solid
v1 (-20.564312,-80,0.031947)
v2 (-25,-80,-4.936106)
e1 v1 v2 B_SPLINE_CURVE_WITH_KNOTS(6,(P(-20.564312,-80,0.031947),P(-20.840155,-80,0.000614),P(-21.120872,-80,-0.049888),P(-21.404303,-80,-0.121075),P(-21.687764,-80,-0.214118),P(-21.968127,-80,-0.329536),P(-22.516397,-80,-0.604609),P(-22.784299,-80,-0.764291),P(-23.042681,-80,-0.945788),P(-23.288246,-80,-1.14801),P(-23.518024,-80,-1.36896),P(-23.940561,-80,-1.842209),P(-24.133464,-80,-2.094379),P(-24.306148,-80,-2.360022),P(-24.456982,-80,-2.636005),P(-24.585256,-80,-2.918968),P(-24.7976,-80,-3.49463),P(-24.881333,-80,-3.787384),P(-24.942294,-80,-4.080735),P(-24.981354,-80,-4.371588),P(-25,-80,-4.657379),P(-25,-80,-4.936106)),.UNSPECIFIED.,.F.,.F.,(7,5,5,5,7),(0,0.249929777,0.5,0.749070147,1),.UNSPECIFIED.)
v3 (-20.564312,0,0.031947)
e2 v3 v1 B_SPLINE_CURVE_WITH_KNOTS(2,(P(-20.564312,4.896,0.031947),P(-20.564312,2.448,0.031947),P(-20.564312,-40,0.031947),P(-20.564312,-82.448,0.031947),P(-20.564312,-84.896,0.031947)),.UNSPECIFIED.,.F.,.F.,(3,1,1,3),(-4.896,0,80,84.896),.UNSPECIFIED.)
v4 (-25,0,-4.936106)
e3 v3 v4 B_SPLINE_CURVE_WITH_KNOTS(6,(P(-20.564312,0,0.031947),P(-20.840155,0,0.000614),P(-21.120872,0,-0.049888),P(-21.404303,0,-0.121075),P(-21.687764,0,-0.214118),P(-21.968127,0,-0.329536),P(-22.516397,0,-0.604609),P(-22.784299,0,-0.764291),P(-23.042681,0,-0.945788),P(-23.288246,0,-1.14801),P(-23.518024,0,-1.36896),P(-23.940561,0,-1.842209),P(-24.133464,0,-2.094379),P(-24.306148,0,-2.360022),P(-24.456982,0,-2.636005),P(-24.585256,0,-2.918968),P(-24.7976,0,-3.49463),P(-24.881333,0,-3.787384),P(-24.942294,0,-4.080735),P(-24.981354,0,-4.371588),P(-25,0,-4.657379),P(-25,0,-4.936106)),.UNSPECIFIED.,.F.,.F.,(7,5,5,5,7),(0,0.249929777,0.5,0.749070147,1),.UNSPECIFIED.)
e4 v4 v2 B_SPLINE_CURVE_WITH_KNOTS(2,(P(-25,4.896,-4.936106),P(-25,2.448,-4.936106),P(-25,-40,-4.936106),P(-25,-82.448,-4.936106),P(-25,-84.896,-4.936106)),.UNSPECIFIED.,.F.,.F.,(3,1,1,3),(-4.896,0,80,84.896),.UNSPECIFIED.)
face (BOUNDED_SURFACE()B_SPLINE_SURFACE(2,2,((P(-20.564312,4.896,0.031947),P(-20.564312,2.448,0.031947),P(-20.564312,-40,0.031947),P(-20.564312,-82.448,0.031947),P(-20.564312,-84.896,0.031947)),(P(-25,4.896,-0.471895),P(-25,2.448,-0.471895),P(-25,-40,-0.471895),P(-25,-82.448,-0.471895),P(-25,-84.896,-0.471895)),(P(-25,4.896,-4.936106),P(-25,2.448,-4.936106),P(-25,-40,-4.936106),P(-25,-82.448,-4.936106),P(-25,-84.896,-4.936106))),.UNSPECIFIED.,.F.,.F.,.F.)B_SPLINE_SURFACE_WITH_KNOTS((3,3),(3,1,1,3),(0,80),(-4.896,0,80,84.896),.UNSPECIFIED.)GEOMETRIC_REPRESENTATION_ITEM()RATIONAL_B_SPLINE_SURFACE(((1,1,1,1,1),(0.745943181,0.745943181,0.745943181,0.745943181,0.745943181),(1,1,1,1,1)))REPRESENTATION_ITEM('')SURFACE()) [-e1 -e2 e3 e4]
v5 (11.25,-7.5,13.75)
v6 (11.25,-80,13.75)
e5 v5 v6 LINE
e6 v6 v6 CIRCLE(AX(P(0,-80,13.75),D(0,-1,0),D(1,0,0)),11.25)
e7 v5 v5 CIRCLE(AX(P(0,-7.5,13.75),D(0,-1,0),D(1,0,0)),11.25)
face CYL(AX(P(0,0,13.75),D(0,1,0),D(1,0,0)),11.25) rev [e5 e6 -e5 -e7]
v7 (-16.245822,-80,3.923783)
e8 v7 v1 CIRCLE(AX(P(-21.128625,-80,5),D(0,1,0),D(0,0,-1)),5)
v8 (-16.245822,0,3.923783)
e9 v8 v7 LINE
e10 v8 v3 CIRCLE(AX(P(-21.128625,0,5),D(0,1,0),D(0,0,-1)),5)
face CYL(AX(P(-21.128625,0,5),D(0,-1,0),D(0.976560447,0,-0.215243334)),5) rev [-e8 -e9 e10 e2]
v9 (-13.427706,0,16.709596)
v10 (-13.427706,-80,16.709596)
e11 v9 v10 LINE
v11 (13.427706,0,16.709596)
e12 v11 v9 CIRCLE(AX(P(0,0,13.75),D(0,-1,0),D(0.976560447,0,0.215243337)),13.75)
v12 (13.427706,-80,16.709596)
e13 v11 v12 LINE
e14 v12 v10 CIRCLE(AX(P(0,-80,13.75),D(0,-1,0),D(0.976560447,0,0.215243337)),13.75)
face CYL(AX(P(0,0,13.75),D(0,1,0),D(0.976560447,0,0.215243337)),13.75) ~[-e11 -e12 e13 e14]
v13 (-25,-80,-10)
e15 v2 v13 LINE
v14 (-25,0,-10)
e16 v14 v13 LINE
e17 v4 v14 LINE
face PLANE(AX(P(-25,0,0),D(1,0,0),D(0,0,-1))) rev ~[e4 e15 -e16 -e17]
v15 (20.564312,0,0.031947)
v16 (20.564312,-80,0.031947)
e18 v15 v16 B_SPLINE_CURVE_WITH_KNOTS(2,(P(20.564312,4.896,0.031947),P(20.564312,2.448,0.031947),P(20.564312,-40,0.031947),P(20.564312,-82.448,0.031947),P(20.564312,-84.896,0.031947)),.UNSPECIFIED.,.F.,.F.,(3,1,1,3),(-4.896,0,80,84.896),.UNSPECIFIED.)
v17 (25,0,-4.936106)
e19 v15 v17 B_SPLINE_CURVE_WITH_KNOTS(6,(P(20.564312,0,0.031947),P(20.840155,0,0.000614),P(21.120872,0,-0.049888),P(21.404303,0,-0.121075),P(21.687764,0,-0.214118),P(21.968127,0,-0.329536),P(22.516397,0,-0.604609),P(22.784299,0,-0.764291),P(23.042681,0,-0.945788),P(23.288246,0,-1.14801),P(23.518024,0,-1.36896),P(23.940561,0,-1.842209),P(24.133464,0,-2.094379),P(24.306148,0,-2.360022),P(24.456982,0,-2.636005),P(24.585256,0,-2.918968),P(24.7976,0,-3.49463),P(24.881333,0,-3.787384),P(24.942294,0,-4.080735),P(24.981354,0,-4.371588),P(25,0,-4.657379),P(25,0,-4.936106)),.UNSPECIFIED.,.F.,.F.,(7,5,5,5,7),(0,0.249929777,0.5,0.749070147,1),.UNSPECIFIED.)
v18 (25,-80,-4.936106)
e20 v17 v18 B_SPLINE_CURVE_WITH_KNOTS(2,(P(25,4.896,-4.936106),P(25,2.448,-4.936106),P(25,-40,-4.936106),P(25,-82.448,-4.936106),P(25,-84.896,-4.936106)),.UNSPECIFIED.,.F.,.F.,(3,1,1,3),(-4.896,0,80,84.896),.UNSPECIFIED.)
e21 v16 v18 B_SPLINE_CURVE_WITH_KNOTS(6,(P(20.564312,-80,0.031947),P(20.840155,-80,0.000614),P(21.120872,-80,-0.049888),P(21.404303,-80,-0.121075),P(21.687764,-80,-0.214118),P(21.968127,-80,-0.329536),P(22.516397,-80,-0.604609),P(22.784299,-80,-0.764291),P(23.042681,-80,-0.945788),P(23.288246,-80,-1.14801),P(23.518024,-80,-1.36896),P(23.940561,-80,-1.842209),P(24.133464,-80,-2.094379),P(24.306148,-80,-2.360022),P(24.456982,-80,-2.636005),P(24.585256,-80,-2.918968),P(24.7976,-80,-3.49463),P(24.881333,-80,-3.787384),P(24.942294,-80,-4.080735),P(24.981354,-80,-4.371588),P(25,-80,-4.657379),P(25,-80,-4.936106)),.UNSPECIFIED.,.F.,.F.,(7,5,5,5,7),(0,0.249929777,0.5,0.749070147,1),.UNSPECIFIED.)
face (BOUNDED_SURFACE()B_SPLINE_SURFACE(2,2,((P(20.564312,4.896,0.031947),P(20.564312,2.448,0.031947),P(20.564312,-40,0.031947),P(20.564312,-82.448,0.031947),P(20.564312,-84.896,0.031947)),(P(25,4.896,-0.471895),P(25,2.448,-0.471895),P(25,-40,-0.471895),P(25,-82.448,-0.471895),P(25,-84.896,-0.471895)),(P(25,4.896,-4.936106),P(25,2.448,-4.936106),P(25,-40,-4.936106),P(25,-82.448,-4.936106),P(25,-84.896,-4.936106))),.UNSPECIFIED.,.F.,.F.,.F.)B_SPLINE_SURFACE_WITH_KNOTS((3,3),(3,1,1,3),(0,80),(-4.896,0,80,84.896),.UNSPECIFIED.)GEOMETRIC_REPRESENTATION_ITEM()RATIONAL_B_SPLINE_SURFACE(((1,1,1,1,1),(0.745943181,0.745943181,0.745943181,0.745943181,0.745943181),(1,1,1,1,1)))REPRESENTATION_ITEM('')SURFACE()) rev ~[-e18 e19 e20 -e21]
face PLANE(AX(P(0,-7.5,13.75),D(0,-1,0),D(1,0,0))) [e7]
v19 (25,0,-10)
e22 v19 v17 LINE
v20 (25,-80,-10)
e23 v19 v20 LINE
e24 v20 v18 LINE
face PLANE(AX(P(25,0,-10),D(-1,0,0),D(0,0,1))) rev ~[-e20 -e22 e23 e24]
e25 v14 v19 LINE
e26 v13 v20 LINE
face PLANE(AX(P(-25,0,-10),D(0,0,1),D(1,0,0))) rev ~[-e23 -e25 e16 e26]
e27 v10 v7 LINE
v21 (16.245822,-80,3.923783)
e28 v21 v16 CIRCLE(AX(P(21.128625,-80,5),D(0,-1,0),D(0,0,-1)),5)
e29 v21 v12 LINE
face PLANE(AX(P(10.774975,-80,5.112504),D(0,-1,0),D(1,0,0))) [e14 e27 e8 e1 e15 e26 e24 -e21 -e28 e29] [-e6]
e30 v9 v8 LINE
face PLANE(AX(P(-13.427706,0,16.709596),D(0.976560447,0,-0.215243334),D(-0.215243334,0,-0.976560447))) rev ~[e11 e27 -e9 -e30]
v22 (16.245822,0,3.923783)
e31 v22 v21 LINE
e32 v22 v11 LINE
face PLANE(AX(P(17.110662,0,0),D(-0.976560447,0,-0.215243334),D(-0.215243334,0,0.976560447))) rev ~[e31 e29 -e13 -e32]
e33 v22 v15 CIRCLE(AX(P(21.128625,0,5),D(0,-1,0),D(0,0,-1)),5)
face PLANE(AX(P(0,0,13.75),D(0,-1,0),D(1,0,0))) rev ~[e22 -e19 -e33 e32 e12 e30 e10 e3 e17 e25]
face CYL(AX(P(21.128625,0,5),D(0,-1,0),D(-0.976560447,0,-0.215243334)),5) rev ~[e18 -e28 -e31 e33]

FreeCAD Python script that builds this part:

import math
import FreeCAD as App
import Part
import Sketcher

V = App.Vector


def edges_at(feature, points):
    """Names of the edges that pass closest to the given points."""
    edges = feature.Shape.Edges
    near = lambda p: min(range(len(edges)), key=lambda i: edges[i].distToShape(Part.Vertex(*p))[0])
    return sorted({f"Edge{near(p) + 1}" for p in points})

doc = App.newDocument("Part")
params = doc.addObject("Spreadsheet::Sheet", "Params")
for row, (alias, value) in enumerate([
    ("sketch1_diameter", "22.5 mm"),
    ("sketch1_width", "50 mm"),
    ("sketch1_height", "10 mm"),
    ("sketch1_radius", "13.75 mm"),
    ("pad1_length", "80 mm"),
    ("sketch2_diameter", "22.5 mm"),
    ("pad2_length", "7.5 mm"),
    ("fillet_radius", "5 mm"),
    ("fillet2_radius", "5 mm"),
], start=1):
    params.set(f"A{row}", alias)
    params.set(f"B{row}", "=" + value)
    params.setAlias(f"B{row}", alias)

body = doc.addObject("PartDesign::Body", "Body")

# Sketch on XZ plane
sketch1 = body.newObject("Sketcher::SketchObject", "Sketch")
sketch1.AttachmentSupport = (doc.getObject("XZ_Plane"), [""])
sketch1.MapMode = "FlatFace"
sketch1.addGeometry([
    Part.LineSegment(V(-13, 17, 0), V(-17, 0, 0)),  # 0
    Part.LineSegment(V(-17, 0, 0), V(-25, 0, 0)),  # 1
    Part.LineSegment(V(-25, 0, 0), V(-25, -10, 0)),  # 2
    Part.LineSegment(V(-25, -10, 0), V(25, -10, 0)),  # 3
    Part.LineSegment(V(25, -10, 0), V(25, 0, 0)),  # 4
    Part.LineSegment(V(25, 0, 0), V(17, 0, 0)),  # 5
    Part.LineSegment(V(17, 0, 0), V(13, 17, 0)),  # 6
    Part.ArcOfCircle(Part.Circle(V(0, 14, 0), V(0, 0, 1), 14), math.radians(12), math.radians(168)),  # 7
    Part.Circle(V(0, 14, 0), V(0, 0, 1), 11),  # 8
], False)
sketch1.addConstraint([
    Sketcher.Constraint("Coincident", 0, 2, 1, 1),
    Sketcher.Constraint("Coincident", 1, 2, 2, 1),
    Sketcher.Constraint("Coincident", 2, 2, 3, 1),
    Sketcher.Constraint("Coincident", 3, 2, 4, 1),
    Sketcher.Constraint("Coincident", 4, 2, 5, 1),
    Sketcher.Constraint("Coincident", 5, 2, 6, 1),
    Sketcher.Constraint("Tangent", 6, 2, 7, 1),
    Sketcher.Constraint("Tangent", 7, 2, 0, 1),
    Sketcher.Constraint("Horizontal", 1),
    Sketcher.Constraint("Vertical", 2),
    Sketcher.Constraint("Horizontal", 3),
    Sketcher.Constraint("Vertical", 4),
    Sketcher.Constraint("Horizontal", 5),
    Sketcher.Constraint("Coincident", 8, 3, 7, 3),
    Sketcher.Constraint("Symmetric", 1, 2, 4, 2, -1, 1),
    Sketcher.Constraint("Symmetric", 0, 2, 5, 2, -2),
    Sketcher.Constraint("PointOnObject", 7, 3, -2),
    Sketcher.Constraint("Diameter", 8, 22.5),
    Sketcher.Constraint("DistanceX", 3, 1, 3, 2, 50.0),
    Sketcher.Constraint("DistanceY", 2, 2, 2, 1, 10.0),
    Sketcher.Constraint("Radius", 7, 13.75),
    Sketcher.Constraint("DistanceY", -1, 1, 7, 3, 13.75),
    Sketcher.Constraint("DistanceX", 1, 2, 1, 1, 7.889338),
])
sketch1.setExpression("Constraints[17]", "Params.sketch1_diameter")
sketch1.setExpression("Constraints[18]", "Params.sketch1_width")
sketch1.setExpression("Constraints[19]", "Params.sketch1_height")
sketch1.setExpression("Constraints[20]", "Params.sketch1_radius")
pad1 = body.newObject("PartDesign::Pad", "Pad")
pad1.Profile = sketch1
pad1.setExpression("Length", "Params.pad1_length")

# Sketch on XZ plane
sketch2 = body.newObject("Sketcher::SketchObject", "Sketch001")
sketch2.AttachmentSupport = (doc.getObject("XZ_Plane"), [""])
sketch2.MapMode = "FlatFace"
sketch2.addGeometry(Part.Circle(V(0, 14, 0), V(0, 0, 1), 11), False)
sketch2.addConstraint([
    Sketcher.Constraint("PointOnObject", 0, 3, -2),
    Sketcher.Constraint("Diameter", 0, 22.5),
    Sketcher.Constraint("DistanceY", -1, 1, 0, 3, 13.75),
])
sketch2.setExpression("Constraints[1]", "Params.sketch2_diameter")
pad2 = body.newObject("PartDesign::Pad", "Pad001")
pad2.Profile = sketch2
pad2.setExpression("Length", "Params.pad2_length")
doc.recompute()

fillet = body.newObject("PartDesign::Fillet", "Fillet")
fillet.Base = (pad2, edges_at(pad2, [(-17.111, -40, 0), (17.111, -40, 0)]))
fillet.setExpression("Radius", "Params.fillet_radius")
doc.recompute()

fillet2 = body.newObject("PartDesign::Fillet", "Fillet001")
fillet2.Base = (fillet, edges_at(fillet, [(-25, -40, 0), (25, -40, 0)]))
fillet2.setExpression("Radius", "Params.fillet2_radius")

doc.recompute()
